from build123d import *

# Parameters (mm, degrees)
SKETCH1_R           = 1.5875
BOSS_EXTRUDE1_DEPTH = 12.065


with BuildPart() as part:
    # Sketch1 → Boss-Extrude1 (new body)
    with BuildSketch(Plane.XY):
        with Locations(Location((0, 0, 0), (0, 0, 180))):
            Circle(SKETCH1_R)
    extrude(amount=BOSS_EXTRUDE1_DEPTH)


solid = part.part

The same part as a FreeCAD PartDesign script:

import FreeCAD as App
import Part
import Sketcher

V = App.Vector
Q = App.Units.Quantity

doc = App.newDocument("Part")
body = doc.addObject("PartDesign::Body", "Body")

sketch1 = body.newObject("Sketcher::SketchObject", "Sketch")
sketch1.AttachmentSupport = (doc.getObject("XY_Plane"), [""])
sketch1.MapMode = "FlatFace"
sketch1.addGeometry(Part.Circle(V(0, 0, 0), V(0, 0, 1), 1.6), False)
sketch1.addConstraint(Sketcher.Constraint("Coincident", 0, 3, -1, 1))
sketch1.addConstraint(Sketcher.Constraint("Diameter", 0, Q("0.125 in")))
pad1 = body.newObject("PartDesign::Pad", "Pad")
pad1.Profile = sketch1
pad1.Length = Q("0.475 in")

doc.recompute()
